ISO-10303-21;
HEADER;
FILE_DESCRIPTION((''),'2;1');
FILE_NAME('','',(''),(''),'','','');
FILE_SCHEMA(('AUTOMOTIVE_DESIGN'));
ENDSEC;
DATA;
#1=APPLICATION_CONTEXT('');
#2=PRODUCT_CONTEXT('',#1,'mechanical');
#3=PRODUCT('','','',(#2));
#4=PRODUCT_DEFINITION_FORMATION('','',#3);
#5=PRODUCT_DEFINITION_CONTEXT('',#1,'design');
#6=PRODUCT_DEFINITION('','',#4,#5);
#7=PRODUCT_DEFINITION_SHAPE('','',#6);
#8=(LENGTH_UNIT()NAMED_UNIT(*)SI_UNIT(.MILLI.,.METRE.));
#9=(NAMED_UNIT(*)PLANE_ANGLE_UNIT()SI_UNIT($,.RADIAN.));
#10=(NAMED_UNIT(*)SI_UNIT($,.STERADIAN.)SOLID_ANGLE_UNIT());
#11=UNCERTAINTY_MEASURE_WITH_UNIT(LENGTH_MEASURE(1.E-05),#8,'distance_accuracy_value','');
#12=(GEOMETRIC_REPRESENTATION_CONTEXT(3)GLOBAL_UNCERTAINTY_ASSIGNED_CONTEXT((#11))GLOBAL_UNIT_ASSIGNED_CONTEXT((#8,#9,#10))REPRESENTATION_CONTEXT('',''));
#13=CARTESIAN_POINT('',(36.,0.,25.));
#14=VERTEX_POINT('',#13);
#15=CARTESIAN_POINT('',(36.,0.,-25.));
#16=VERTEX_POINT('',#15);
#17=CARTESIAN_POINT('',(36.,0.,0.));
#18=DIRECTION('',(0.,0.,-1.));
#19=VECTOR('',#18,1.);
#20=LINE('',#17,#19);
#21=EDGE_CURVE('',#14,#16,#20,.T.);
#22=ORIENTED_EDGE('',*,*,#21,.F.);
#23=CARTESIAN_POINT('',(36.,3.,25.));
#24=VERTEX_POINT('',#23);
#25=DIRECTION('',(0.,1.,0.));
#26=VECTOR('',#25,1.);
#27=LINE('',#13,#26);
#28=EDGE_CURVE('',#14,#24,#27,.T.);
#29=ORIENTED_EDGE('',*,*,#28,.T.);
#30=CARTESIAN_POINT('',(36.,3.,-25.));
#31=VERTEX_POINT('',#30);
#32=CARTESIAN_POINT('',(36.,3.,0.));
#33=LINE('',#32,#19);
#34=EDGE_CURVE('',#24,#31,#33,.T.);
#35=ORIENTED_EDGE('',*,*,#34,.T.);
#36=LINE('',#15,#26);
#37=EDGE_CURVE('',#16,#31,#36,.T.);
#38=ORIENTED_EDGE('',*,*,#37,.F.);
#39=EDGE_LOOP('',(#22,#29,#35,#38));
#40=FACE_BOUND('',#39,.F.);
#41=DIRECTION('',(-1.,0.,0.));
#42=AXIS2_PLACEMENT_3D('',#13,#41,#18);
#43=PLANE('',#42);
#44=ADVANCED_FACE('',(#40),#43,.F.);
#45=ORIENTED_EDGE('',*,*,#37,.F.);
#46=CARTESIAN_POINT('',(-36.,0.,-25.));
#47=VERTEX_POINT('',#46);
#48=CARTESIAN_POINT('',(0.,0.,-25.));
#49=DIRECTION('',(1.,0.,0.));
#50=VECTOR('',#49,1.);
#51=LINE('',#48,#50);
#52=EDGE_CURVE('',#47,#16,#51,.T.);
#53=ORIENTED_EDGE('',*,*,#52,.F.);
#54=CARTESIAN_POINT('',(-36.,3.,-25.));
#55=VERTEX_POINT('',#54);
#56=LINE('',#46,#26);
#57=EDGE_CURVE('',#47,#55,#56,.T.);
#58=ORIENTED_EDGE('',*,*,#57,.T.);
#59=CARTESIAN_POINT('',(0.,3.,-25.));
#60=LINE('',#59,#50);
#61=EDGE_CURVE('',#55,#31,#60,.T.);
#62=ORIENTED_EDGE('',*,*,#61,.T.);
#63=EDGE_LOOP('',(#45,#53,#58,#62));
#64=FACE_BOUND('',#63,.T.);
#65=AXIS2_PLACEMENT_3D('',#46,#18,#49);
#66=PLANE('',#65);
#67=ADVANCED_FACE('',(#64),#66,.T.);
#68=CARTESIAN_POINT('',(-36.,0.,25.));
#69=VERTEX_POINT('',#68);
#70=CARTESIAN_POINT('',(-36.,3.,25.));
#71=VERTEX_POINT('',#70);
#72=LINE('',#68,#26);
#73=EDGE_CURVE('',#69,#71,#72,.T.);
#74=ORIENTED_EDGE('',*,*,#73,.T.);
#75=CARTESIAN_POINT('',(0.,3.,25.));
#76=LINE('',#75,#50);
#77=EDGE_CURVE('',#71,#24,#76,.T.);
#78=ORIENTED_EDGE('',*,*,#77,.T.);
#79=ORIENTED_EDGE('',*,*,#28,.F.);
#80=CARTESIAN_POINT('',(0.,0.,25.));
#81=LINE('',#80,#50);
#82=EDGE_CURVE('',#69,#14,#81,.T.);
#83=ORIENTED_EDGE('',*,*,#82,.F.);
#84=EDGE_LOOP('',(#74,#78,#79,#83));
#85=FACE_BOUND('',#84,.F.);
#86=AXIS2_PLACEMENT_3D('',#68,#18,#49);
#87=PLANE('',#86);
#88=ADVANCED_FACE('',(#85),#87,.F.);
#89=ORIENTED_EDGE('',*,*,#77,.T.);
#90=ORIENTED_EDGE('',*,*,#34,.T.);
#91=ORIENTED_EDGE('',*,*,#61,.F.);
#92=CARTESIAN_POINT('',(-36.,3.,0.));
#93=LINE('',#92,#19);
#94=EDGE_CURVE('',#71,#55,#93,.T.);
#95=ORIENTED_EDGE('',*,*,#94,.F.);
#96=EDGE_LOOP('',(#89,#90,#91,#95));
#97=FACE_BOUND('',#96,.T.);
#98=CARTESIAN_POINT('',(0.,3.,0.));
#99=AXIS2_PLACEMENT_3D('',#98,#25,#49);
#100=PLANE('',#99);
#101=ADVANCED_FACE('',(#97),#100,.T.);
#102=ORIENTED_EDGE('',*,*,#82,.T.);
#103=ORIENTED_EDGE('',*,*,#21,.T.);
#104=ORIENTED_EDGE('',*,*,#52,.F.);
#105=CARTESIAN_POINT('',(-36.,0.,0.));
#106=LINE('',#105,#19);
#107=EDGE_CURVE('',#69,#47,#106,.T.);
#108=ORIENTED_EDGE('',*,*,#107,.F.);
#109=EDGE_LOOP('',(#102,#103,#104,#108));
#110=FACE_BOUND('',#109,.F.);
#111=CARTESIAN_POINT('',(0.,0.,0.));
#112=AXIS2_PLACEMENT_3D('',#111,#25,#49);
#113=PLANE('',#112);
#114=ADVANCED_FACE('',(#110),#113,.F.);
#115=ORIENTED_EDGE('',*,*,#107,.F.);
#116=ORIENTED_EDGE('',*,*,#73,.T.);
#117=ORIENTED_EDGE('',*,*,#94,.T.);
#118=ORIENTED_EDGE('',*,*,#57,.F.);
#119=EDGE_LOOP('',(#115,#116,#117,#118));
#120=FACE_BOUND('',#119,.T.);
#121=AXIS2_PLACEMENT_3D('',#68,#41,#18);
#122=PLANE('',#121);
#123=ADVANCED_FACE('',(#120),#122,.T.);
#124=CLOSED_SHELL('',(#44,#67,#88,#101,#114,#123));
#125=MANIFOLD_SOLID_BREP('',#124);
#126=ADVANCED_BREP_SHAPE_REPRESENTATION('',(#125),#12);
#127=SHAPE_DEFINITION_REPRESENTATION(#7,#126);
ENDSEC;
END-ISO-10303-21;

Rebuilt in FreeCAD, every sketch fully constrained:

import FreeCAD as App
import Part
import Sketcher

doc = App.newDocument("Part")
body = doc.addObject("PartDesign::Body", "Body")

# Sketch on XZ plane
sketch1 = body.newObject("Sketcher::SketchObject", "Sketch")
sketch1.AttachmentSupport = (doc.getObject("XZ_Plane"), [""])
sketch1.MapMode = "FlatFace"
sketch1.addGeometry([
    Part.LineSegment(App.Vector(-36, -25, 0), App.Vector(-36, 25, 0)),
    Part.LineSegment(App.Vector(-36, 25, 0), App.Vector(36, 25, 0)),
    Part.LineSegment(App.Vector(36, 25, 0), App.Vector(36, -25, 0)),
    Part.LineSegment(App.Vector(36, -25, 0), App.Vector(-36, -25, 0)),
], False)
sketch1.addConstraint([
    Sketcher.Constraint("Coincident", 0, 2, 1, 1),
    Sketcher.Constraint("Coincident", 1, 2, 2, 1),
    Sketcher.Constraint("Coincident", 2, 2, 3, 1),
    Sketcher.Constraint("Coincident", 3, 2, 0, 1),
    Sketcher.Constraint("Vertical", 0),
    Sketcher.Constraint("Horizontal", 1),
    Sketcher.Constraint("Vertical", 2),
    Sketcher.Constraint("Horizontal", 3),
    Sketcher.Constraint("Symmetric", 0, 2, 2, 2, -1, 1),
    Sketcher.Constraint("DistanceX", 1, 1, 1, 2, 72.0),
    Sketcher.Constraint("DistanceY", 0, 1, 0, 2, 50.0),
])
pad1 = body.newObject("PartDesign::Pad", "Pad")
pad1.Profile = sketch1
pad1.Length = 3
pad1.Reversed = True

doc.recompute()
